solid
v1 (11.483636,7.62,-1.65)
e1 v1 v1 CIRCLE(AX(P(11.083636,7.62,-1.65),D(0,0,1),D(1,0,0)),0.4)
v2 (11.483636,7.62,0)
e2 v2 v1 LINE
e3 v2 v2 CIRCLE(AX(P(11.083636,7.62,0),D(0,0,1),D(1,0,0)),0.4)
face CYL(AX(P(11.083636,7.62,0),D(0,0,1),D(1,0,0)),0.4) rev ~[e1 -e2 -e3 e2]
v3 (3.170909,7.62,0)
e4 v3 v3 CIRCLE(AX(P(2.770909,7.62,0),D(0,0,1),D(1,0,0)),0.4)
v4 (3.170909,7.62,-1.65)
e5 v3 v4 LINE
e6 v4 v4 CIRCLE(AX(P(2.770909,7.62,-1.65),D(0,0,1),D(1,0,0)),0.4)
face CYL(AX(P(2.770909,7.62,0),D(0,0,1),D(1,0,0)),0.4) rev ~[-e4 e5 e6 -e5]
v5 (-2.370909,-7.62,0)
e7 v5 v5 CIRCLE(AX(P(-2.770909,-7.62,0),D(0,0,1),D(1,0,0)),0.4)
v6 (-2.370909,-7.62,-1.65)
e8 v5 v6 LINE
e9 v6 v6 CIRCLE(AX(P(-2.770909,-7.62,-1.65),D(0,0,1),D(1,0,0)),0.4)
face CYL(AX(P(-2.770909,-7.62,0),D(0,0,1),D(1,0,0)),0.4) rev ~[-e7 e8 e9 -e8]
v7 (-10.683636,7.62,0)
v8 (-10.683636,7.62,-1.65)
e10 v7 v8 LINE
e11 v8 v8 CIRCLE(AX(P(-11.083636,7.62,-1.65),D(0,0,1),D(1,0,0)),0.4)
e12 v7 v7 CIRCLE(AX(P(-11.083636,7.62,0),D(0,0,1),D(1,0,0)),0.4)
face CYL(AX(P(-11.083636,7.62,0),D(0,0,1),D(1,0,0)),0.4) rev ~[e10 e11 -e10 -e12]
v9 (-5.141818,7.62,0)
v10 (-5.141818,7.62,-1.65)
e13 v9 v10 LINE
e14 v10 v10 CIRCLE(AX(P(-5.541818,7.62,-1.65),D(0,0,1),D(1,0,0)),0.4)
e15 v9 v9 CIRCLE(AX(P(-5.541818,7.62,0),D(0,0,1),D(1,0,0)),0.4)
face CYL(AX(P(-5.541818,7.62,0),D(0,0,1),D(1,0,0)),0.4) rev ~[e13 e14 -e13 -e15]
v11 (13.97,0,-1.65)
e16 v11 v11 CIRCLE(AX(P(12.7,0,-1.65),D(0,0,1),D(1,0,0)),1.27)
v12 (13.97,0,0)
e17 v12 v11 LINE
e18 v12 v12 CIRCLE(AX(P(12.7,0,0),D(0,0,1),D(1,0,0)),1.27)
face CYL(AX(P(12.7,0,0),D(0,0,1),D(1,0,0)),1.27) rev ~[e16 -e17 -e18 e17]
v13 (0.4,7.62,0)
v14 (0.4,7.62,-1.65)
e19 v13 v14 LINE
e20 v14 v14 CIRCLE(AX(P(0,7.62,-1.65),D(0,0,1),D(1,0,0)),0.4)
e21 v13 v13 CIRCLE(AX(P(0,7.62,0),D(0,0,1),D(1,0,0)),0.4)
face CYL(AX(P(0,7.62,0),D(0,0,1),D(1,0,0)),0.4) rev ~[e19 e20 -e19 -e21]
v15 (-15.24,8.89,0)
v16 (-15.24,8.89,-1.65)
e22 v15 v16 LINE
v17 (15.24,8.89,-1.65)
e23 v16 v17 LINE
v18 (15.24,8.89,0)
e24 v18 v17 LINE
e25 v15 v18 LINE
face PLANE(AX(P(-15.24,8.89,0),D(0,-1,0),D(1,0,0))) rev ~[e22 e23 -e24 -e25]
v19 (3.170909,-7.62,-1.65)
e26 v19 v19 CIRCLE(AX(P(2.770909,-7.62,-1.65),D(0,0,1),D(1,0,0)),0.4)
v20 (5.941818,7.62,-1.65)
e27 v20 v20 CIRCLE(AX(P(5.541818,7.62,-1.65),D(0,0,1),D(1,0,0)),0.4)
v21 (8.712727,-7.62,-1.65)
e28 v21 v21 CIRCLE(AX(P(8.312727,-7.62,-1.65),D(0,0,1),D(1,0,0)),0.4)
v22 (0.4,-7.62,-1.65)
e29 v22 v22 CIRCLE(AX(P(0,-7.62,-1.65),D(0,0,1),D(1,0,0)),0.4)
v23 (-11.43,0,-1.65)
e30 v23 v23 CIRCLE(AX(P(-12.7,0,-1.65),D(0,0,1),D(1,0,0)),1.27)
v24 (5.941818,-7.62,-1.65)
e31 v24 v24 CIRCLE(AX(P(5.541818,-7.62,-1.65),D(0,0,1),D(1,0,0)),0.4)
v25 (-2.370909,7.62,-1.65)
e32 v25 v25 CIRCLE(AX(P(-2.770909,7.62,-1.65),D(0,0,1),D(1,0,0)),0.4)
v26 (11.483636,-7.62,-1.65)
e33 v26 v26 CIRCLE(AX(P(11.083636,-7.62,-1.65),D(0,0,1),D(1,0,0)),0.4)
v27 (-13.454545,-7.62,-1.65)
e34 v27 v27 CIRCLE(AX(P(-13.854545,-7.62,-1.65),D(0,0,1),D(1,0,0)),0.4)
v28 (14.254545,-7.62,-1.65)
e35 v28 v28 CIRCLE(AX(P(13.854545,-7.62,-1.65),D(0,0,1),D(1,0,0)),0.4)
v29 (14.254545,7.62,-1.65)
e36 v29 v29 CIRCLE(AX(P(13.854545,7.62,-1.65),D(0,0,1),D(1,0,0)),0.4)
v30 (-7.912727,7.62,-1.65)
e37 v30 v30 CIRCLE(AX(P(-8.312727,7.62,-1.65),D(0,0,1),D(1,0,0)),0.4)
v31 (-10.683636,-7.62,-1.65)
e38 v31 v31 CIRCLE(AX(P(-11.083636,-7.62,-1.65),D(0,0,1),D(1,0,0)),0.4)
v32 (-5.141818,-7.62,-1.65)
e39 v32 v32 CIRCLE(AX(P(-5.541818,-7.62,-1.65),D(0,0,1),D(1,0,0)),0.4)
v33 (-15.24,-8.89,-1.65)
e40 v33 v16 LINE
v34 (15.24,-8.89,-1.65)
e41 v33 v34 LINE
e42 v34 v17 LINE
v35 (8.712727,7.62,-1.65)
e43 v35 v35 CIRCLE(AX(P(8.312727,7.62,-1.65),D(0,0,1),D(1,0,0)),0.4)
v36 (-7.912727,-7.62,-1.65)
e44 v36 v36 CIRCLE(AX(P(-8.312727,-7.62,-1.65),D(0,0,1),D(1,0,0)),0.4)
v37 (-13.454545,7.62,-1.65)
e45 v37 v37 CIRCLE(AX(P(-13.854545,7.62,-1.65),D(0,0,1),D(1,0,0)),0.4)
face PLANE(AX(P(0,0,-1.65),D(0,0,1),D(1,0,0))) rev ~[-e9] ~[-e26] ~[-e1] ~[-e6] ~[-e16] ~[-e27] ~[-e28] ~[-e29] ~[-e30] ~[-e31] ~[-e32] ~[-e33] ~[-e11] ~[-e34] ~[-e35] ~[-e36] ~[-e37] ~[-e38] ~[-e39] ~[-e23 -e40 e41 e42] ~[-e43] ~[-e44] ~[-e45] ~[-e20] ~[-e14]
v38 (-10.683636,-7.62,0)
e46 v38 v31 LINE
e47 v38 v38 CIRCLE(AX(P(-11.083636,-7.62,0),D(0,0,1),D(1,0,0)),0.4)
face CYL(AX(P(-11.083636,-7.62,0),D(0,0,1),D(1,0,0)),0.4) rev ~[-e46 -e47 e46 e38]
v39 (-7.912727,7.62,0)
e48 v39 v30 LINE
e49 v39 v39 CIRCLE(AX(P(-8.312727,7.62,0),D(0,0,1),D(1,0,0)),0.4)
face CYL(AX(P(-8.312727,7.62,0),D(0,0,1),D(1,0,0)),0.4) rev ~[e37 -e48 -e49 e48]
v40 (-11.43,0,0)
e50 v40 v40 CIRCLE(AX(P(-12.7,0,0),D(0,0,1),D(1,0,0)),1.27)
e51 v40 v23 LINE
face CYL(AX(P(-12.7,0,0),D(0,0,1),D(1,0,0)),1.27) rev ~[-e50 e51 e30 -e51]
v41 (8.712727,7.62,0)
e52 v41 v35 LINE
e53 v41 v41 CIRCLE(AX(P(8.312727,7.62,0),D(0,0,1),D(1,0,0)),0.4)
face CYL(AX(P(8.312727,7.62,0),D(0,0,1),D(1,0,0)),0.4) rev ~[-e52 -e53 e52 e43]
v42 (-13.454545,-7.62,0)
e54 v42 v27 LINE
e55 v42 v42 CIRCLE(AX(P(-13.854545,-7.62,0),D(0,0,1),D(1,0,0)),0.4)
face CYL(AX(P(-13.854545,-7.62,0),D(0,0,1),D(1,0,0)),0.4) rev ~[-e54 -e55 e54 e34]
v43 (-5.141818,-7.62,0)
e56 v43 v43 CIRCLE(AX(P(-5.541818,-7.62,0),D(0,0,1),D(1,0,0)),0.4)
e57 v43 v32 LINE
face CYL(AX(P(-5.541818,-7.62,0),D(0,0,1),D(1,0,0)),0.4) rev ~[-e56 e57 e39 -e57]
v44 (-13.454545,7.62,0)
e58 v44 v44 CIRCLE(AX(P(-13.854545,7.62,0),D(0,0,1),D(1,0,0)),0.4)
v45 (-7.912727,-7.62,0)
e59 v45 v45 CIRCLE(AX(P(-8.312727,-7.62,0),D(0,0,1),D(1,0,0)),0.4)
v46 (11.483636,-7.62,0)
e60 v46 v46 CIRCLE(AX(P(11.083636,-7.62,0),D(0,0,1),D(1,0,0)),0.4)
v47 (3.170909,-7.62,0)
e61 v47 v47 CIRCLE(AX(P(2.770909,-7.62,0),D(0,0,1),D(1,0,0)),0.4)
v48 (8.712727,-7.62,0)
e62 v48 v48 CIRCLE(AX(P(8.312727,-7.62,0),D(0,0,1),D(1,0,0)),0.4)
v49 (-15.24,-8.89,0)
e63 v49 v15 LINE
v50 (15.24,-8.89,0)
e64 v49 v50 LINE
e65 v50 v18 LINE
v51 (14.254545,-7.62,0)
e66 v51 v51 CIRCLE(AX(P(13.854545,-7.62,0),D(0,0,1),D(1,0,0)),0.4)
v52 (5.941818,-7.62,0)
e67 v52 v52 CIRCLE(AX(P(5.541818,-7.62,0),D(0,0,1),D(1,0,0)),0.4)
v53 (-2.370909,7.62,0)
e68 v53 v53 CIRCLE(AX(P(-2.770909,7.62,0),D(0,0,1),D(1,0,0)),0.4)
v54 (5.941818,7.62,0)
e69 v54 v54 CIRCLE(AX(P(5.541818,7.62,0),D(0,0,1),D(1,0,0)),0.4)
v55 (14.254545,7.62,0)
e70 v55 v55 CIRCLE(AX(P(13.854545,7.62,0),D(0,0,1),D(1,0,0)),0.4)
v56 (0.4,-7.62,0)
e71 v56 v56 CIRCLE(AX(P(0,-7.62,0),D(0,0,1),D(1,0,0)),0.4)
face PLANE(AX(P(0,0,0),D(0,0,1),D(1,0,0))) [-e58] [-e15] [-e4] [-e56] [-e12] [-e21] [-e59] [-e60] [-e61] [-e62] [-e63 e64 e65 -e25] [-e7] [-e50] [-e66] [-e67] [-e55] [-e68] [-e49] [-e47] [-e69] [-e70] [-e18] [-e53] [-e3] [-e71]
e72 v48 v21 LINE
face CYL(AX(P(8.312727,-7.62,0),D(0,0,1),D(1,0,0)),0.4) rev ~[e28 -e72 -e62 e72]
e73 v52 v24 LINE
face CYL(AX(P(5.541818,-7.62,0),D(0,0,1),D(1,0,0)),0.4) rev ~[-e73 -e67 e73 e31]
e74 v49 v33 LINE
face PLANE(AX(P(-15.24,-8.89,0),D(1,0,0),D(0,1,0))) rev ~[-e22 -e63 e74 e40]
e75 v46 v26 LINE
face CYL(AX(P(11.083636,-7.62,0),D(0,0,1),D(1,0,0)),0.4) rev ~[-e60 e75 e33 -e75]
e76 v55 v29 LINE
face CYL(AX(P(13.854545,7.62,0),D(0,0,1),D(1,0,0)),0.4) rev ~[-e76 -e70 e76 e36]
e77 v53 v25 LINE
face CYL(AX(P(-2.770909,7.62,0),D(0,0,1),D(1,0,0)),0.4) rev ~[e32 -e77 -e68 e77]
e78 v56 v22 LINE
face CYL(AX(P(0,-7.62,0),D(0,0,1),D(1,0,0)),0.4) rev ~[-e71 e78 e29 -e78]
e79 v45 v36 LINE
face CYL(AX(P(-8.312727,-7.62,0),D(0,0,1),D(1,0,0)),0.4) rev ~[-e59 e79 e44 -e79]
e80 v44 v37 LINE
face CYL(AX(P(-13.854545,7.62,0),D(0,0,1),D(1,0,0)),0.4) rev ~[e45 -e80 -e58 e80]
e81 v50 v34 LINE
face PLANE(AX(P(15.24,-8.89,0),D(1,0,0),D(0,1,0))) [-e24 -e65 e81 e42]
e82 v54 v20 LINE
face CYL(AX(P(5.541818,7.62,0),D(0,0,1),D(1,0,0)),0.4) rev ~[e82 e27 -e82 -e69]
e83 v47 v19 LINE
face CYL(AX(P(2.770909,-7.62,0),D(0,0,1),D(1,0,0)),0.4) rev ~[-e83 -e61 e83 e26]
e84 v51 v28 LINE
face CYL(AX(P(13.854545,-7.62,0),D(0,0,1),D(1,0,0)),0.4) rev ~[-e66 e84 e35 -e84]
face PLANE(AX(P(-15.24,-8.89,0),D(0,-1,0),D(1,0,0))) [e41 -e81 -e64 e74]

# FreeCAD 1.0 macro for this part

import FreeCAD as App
import Part
import Sketcher
from FreeCAD import Vector
Q = App.Units.Quantity


def add_polygon(sketch, points):
    """Adds a closed chain of lines whose ends are joined by coincident constraints."""
    first, n = sketch.GeometryCount, len(points)
    for a, b in zip(points, points[1:] + points[:1]):
        sketch.addGeometry(Part.LineSegment(App.Vector(*a, 0), App.Vector(*b, 0)), False)
    for i in range(n):
        sketch.addConstraint(Sketcher.Constraint("Coincident", first + i, 2, first + (i + 1) % n, 1))

doc = App.newDocument("Part")
body = doc.addObject("PartDesign::Body", "Body")

# Sketch on XY plane
sketch1 = body.newObject("Sketcher::SketchObject", "Sketch")
sketch1.AttachmentSupport = (doc.getObject("XY_Plane"), [""])
sketch1.MapMode = "FlatFace"
add_polygon(sketch1, [(-15.24, 8.89), (-15.24, -8.89), (15.24, -8.89), (15.24, 8.89)])  # lines 0-3
sketch1.addConstraint([
    Sketcher.Constraint("Vertical", 0),
    Sketcher.Constraint("Horizontal", 1),
    Sketcher.Constraint("Vertical", 2),
    Sketcher.Constraint("Horizontal", 3),
    Sketcher.Constraint("Symmetric", 0, 2, 2, 2, -1, 1),
    Sketcher.Constraint("DistanceX", 1, 1, 1, 2, Q("1.2 in")),
    Sketcher.Constraint("DistanceY", 0, 2, 0, 1, Q("0.7 in")),
])
pad1 = body.newObject("PartDesign::Pad", "Pad")
pad1.Profile = sketch1
pad1.Length = 1.65
pad1.Reversed = True

# Sketch on XY plane
sketch2 = body.newObject("Sketcher::SketchObject", "Sketch001")
sketch2.AttachmentSupport = (doc.getObject("XY_Plane"), [""])
sketch2.MapMode = "FlatFace"
sketch2.addGeometry([
    Part.Circle(Vector(-12.7, 0, 0), Vector(0, 0, 1), 1.27),
    Part.Circle(Vector(12.7, 0, 0), Vector(0, 0, 1), 1.27),
], False)
sketch2.addConstraint([
    Sketcher.Constraint("Equal", 0, 1),
    Sketcher.Constraint("Symmetric", 0, 3, 1, 3, -1, 1),
    Sketcher.Constraint("PointOnObject", 0, 3, -1),
    Sketcher.Constraint("Diameter", 0, Q("0.1 in")),
    Sketcher.Constraint("DistanceX", 0, 3, 1, 3, Q("1 in")),
])
pocket1 = body.newObject("PartDesign::Pocket", "Pocket")
pocket1.Profile = sketch2
pocket1.Type = "ThroughAll"

# Sketch on XY plane
sketch3 = body.newObject("Sketcher::SketchObject", "Sketch002")
sketch3.AttachmentSupport = (doc.getObject("XY_Plane"), [""])
sketch3.MapMode = "FlatFace"
sketch3.addGeometry([
    Part.Circle(Vector(0, -7.62, 0), Vector(0, 0, 1), 0.4),
    Part.Circle(Vector(0, 7.62, 0), Vector(0, 0, 1), 0.4),
], False)
sketch3.addConstraint([
    Sketcher.Constraint("Equal", 0, 1),
    Sketcher.Constraint("Symmetric", 0, 3, 1, 3, -1, 1),
    Sketcher.Constraint("PointOnObject", 0, 3, -2),
    Sketcher.Constraint("DistanceY", 0, 3, -1, 1, Q("0.3 in")),
    Sketcher.Constraint("Diameter", 0, 0.8),
])
pocket2 = body.newObject("PartDesign::Pocket", "Pocket001")
pocket2.Profile = sketch3
pocket2.Type = "ThroughAll"
doc.recompute()

linearpattern = body.newObject("PartDesign::LinearPattern", "LinearPattern")
linearpattern.Originals = [pocket2]
linearpattern.Direction = (doc.getObject("X_Axis"), [""])
linearpattern.Mode = "offset"
linearpattern.Offset = 2.770909
linearpattern.Occurrences = 12
body.Tip = linearpattern
doc.recompute()

linearpattern2 = body.newObject("PartDesign::LinearPattern", "LinearPattern001")
linearpattern2.Originals = [pocket2]
linearpattern2.Direction = (doc.getObject("X_Axis"), [""])
linearpattern2.Mode = "offset"
linearpattern2.Offset = 2.770909
linearpattern2.Occurrences = 12
linearpattern2.Reversed = True
body.Tip = linearpattern2

doc.recompute()
